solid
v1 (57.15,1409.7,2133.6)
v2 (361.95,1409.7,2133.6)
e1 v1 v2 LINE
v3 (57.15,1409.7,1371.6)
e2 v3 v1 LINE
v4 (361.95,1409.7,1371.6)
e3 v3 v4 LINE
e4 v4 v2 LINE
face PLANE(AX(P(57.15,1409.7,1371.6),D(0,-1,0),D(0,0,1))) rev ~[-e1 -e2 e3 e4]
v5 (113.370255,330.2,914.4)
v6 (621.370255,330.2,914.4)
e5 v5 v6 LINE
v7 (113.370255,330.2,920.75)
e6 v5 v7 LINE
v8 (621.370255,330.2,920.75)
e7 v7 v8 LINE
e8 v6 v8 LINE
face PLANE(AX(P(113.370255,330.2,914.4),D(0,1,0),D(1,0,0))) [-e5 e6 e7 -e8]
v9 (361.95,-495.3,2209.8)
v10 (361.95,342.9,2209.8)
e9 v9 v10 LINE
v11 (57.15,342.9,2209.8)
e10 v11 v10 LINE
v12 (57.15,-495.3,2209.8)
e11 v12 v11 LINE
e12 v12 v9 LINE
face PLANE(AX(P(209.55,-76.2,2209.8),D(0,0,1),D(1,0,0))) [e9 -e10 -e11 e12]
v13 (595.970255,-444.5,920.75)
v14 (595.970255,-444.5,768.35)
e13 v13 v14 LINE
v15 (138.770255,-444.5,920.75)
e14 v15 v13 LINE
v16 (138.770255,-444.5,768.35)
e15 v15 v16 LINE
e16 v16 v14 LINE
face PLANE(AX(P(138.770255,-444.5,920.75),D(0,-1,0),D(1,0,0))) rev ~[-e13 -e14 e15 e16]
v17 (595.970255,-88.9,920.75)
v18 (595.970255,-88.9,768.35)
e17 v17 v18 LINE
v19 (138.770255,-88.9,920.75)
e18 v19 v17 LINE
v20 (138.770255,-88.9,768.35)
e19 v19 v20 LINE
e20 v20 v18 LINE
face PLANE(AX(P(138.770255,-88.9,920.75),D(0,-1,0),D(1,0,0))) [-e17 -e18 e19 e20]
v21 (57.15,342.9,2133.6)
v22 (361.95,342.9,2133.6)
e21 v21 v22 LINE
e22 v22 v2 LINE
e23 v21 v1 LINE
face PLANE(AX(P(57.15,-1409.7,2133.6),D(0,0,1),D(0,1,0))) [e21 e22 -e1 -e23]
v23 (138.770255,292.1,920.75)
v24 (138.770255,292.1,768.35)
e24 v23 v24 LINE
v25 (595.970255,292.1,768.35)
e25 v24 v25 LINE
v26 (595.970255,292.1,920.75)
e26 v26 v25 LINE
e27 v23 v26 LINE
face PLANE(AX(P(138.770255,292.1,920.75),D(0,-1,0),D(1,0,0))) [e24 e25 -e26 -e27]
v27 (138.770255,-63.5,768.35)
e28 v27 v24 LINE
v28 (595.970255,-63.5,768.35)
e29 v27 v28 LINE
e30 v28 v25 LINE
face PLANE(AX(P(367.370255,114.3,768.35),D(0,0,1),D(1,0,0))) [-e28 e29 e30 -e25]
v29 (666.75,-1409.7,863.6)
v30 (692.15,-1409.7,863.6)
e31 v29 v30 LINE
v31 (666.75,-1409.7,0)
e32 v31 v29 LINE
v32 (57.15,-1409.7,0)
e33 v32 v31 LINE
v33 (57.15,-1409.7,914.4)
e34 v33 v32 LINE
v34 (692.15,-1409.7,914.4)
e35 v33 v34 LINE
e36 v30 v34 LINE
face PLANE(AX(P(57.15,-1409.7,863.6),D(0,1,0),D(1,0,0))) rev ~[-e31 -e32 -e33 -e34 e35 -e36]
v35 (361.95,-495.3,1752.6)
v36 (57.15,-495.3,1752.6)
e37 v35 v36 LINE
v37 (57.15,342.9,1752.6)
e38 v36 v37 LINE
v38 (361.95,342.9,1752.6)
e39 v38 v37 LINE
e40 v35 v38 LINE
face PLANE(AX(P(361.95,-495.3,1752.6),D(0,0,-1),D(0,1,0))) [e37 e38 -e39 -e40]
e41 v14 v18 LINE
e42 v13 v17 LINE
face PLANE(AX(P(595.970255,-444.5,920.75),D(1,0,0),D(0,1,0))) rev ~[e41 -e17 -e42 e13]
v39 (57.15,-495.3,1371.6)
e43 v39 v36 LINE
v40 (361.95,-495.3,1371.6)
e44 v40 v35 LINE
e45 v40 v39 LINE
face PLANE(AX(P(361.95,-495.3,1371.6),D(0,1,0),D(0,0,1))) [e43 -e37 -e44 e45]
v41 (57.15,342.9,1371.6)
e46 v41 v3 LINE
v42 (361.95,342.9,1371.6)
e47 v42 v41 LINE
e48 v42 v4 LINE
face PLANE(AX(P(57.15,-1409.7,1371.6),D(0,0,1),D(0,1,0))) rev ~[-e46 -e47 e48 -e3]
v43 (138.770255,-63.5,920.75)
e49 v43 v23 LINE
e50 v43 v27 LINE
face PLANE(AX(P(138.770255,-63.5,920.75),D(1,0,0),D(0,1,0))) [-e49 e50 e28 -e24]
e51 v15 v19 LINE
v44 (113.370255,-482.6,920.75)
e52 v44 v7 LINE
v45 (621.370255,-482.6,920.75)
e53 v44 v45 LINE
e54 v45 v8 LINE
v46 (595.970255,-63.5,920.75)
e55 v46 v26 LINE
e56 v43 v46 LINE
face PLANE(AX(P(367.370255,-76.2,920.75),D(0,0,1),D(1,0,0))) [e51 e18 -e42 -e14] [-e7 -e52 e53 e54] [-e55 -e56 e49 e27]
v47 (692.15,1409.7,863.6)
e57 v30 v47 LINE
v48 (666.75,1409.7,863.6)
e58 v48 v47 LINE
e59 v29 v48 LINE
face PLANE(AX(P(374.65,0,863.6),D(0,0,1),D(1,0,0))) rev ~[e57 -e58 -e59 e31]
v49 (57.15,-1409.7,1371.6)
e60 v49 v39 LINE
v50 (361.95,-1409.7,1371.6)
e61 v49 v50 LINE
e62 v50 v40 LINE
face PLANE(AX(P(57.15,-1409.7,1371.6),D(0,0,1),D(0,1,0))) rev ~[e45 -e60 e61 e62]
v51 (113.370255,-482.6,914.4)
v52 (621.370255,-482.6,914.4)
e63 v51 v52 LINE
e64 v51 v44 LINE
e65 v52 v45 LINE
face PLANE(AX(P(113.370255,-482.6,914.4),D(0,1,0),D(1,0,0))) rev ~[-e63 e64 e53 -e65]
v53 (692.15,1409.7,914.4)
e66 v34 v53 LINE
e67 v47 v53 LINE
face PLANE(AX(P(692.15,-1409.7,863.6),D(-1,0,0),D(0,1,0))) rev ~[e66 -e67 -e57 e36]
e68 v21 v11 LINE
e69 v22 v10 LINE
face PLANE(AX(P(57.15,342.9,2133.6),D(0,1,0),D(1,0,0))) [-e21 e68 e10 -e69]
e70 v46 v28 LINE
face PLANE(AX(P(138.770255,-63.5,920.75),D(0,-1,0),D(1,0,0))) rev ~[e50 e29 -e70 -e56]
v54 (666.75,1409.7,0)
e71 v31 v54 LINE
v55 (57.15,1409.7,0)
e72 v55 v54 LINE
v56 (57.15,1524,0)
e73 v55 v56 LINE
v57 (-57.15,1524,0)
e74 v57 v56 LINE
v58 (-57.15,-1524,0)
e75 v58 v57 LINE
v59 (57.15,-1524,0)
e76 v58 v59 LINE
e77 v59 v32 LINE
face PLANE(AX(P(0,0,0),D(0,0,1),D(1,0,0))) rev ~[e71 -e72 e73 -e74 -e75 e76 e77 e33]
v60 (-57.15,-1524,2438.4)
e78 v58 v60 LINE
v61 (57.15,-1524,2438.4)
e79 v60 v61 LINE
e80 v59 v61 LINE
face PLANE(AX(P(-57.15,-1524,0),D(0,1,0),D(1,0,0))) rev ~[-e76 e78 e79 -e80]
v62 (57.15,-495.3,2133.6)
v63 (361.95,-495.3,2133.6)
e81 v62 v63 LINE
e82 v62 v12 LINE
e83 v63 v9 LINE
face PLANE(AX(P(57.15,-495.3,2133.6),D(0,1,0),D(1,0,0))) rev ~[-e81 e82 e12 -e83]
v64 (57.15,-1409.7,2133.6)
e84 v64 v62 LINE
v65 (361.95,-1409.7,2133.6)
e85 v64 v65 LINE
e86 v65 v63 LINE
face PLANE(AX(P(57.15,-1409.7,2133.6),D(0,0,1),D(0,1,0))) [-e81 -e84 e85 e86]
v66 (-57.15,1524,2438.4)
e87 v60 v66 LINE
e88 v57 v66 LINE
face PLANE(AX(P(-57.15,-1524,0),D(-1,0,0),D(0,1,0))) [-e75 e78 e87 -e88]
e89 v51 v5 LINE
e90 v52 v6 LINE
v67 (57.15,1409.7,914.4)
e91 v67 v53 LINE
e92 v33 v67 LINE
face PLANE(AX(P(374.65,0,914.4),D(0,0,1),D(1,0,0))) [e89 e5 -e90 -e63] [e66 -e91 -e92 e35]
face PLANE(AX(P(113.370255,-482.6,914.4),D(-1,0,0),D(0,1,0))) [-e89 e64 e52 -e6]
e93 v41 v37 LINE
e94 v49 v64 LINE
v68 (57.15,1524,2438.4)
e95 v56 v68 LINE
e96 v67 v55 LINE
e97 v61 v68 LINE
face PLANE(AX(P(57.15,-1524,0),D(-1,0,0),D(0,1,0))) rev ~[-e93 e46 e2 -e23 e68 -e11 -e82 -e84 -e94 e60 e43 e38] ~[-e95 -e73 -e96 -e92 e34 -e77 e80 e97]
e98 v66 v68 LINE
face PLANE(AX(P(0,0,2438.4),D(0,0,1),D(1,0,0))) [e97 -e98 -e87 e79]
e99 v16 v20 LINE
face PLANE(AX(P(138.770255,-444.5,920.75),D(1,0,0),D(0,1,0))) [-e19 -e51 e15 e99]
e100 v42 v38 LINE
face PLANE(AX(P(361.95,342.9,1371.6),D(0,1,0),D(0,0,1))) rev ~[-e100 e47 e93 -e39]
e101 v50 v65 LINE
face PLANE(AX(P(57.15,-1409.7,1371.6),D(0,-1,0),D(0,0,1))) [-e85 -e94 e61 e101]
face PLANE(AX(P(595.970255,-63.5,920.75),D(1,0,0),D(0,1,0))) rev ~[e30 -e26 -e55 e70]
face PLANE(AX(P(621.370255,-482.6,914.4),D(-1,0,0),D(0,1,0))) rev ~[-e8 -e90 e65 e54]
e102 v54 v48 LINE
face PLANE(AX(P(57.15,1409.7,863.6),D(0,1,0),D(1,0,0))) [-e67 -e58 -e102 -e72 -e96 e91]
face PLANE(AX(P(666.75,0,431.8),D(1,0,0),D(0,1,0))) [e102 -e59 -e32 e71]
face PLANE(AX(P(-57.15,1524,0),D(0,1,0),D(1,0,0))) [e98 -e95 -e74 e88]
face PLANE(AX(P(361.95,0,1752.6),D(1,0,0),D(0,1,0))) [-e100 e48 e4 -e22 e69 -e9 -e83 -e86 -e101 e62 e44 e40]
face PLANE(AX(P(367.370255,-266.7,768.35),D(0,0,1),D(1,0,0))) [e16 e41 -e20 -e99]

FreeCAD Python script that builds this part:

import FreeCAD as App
import Part
import Sketcher
from FreeCAD import Vector
Q = App.Units.Quantity


def add_polygon(sketch, points):
    """Adds a closed chain of lines whose ends are joined by coincident constraints."""
    first, n = sketch.GeometryCount, len(points)
    for a, b in zip(points, points[1:] + points[:1]):
        sketch.addGeometry(Part.LineSegment(App.Vector(*a, 0), App.Vector(*b, 0)), False)
    for i in range(n):
        sketch.addConstraint(Sketcher.Constraint("Coincident", first + i, 2, first + (i + 1) % n, 1))

doc = App.newDocument("Part")
body = doc.addObject("PartDesign::Body", "Body")

sketch1 = body.newObject("Sketcher::SketchObject", "Sketch")
sketch1.AttachmentSupport = (doc.getObject("XY_Plane"), [""])
sketch1.MapMode = "FlatFace"
add_polygon(sketch1, [(-57, 1524), (-57, -1524), (57, -1524), (57, 1524)])
sketch1.addConstraint([
    Sketcher.Constraint("Vertical", 0),
    Sketcher.Constraint("Horizontal", 1),
    Sketcher.Constraint("Vertical", 2),
    Sketcher.Constraint("Horizontal", 3),
    Sketcher.Constraint("Symmetric", 0, 2, 2, 2, -1, 1),
    Sketcher.Constraint("DistanceY", 0, 2, 0, 1, Q("120 in")),
    Sketcher.Constraint("DistanceX", 1, 1, 1, 2, Q("4.5 in")),
])
pad1 = body.newObject("PartDesign::Pad", "Pad")
pad1.Profile = sketch1
pad1.Length = Q("96 in")

sketch2 = body.newObject("Sketcher::SketchObject", "Sketch001")
sketch2.AttachmentSupport = (doc.getObject("YZ_Plane"), [""])
sketch2.MapMode = "FlatFace"
sketch2.AttachmentOffset = App.Placement(Vector(0, 0, 2.25 * 25.4), App.Rotation())
add_polygon(sketch2, [(-1410, 864), (-1410, 0), (1410, 0), (1410, 864)])
sketch2.addConstraint([
    Sketcher.Constraint("Vertical", 0),
    Sketcher.Constraint("Horizontal", 1),
    Sketcher.Constraint("Vertical", 2),
    Sketcher.Constraint("Horizontal", 3),
    Sketcher.Constraint("Symmetric", 0, 2, 1, 2, -1, 1),
    Sketcher.Constraint("DistanceX", 1, 1, 1, 2, Q("111 in")),
    Sketcher.Constraint("DistanceY", 0, 2, 0, 1, Q("34 in")),
])
pad2 = body.newObject("PartDesign::Pad", "Pad001")
pad2.Profile = sketch2
pad2.Length = Q("24 in")

sketch3 = body.newObject("Sketcher::SketchObject", "Sketch002")
sketch3.AttachmentSupport = (doc.getObject("YZ_Plane"), [""])
sketch3.MapMode = "FlatFace"
sketch3.AttachmentOffset = App.Placement(Vector(0, 0, 2.25 * 25.4), App.Rotation())
add_polygon(sketch3, [(-1410, 2134), (-1410, 1372), (1410, 1372), (1410, 2134)])
sketch3.addConstraint([
    Sketcher.Constraint("Vertical", 0),
    Sketcher.Constraint("Horizontal", 1),
    Sketcher.Constraint("Vertical", 2),
    Sketcher.Constraint("Horizontal", 3),
    Sketcher.Constraint("DistanceX", 1, 1, 1, 2, Q("111 in")),
    Sketcher.Constraint("DistanceY", 0, 2, 0, 1, Q("30 in")),
    Sketcher.Constraint("DistanceY", -1, 1, 0, 2, Q("54 in")),
    Sketcher.Constraint("DistanceX", 0, 2, -1, 1, Q("55.5 in")),
])
pad3 = body.newObject("PartDesign::Pad", "Pad002")
pad3.Profile = sketch3
pad3.Length = Q("12 in")

sketch4 = body.newObject("Sketcher::SketchObject", "Sketch003")
sketch4.AttachmentSupport = (doc.getObject("YZ_Plane"), [""])
sketch4.MapMode = "FlatFace"
sketch4.AttachmentOffset = App.Placement(Vector(0, 0, 14.25 * 25.4), App.Rotation())
add_polygon(sketch4, [(-495, 1753), (-495, 1372), (343, 1372), (343, 1753)])
sketch4.addConstraint([
    Sketcher.Constraint("Vertical", 0),
    Sketcher.Constraint("Horizontal", 1),
    Sketcher.Constraint("Vertical", 2),
    Sketcher.Constraint("Horizontal", 3),
    Sketcher.Constraint("DistanceX", 1, 1, 1, 2, Q("33 in")),
    Sketcher.Constraint("DistanceY", 0, 2, 0, 1, Q("15 in")),
    Sketcher.Constraint("DistanceY", -1, 1, 0, 2, Q("54 in")),
    Sketcher.Constraint("DistanceX", 0, 2, -1, 1, Q("19.5 in")),
])
pocket1 = body.newObject("PartDesign::Pocket", "Pocket")
pocket1.Profile = sketch4
pocket1.Length = Q("12 in")

sketch5 = body.newObject("Sketcher::SketchObject", "Sketch004")
sketch5.AttachmentSupport = (doc.getObject("XY_Plane"), [""])
sketch5.MapMode = "FlatFace"
sketch5.AttachmentOffset = App.Placement(Vector(0, 0, 84 * 25.4), App.Rotation())
add_polygon(sketch5, [(57, 343), (57, -495), (362, -495), (362, 343)])
sketch5.addConstraint([
    Sketcher.Constraint("Vertical", 0),
    Sketcher.Constraint("Horizontal", 1),
    Sketcher.Constraint("Vertical", 2),
    Sketcher.Constraint("Horizontal", 3),
    Sketcher.Constraint("DistanceX", 1, 1, 1, 2, Q("12 in")),
    Sketcher.Constraint("DistanceY", 0, 2, 0, 1, Q("33 in")),
    Sketcher.Constraint("DistanceY", 0, 2, -1, 1, Q("19.5 in")),
    Sketcher.Constraint("DistanceX", -1, 1, 0, 2, Q("2.25 in")),
])
pad4 = body.newObject("PartDesign::Pad", "Pad003")
pad4.Profile = sketch5
pad4.Length = Q("3 in")

sketch6 = body.newObject("Sketcher::SketchObject", "Sketch005")
sketch6.AttachmentSupport = (doc.getObject("XY_Plane"), [""])
sketch6.MapMode = "FlatFace"
sketch6.AttachmentOffset = App.Placement(Vector(0, 0, 34 * 25.4), App.Rotation())
add_polygon(sketch6, [(57, 1410), (57, -1410), (692, -1410), (692, 1410)])
sketch6.addConstraint([
    Sketcher.Constraint("Vertical", 0),
    Sketcher.Constraint("Horizontal", 1),
    Sketcher.Constraint("Vertical", 2),
    Sketcher.Constraint("Horizontal", 3),
    Sketcher.Constraint("DistanceX", 1, 1, 1, 2, Q("25 in")),
    Sketcher.Constraint("DistanceY", 0, 2, 0, 1, Q("111 in")),
    Sketcher.Constraint("DistanceY", 0, 2, -1, 1, Q("55.5 in")),
    Sketcher.Constraint("DistanceX", -1, 1, 0, 2, Q("2.25 in")),
])
pad5 = body.newObject("PartDesign::Pad", "Pad004")
pad5.Profile = sketch6
pad5.Length = Q("2 in")

sketch7 = body.newObject("Sketcher::SketchObject", "Sketch006")
sketch7.AttachmentSupport = (doc.getObject("XY_Plane"), [""])
sketch7.MapMode = "FlatFace"
sketch7.AttachmentOffset = App.Placement(Vector(0, 0, 36 * 25.4), App.Rotation())
add_polygon(sketch7, [(113, 330), (113, -483), (621, -483), (621, 330)])
sketch7.addConstraint([
    Sketcher.Constraint("Vertical", 0),
    Sketcher.Constraint("Horizontal", 1),
    Sketcher.Constraint("Vertical", 2),
    Sketcher.Constraint("Horizontal", 3),
    Sketcher.Constraint("DistanceX", 1, 1, 1, 2, Q("20 in")),
    Sketcher.Constraint("DistanceY", 0, 2, 0, 1, Q("32 in")),
    Sketcher.Constraint("DistanceY", 0, 2, -1, 1, Q("19 in")),
    Sketcher.Constraint("DistanceX", -1, 1, 0, 2, Q("113.370255 mm")),
])
pad6 = body.newObject("PartDesign::Pad", "Pad005")
pad6.Profile = sketch7
pad6.Length = Q("0.25 in")

sketch8 = body.newObject("Sketcher::SketchObject", "Sketch007")
sketch8.AttachmentSupport = (doc.getObject("XY_Plane"), [""])
sketch8.MapMode = "FlatFace"
sketch8.AttachmentOffset = App.Placement(Vector(0, 0, 36.25 * 25.4), App.Rotation())
add_polygon(sketch8, [(139, -89), (139, -444), (596, -444), (596, -89)])
add_polygon(sketch8, [(139, 292), (139, -64), (596, -64), (596, 292)])
sketch8.addConstraint([
    Sketcher.Constraint("Vertical", 0),
    Sketcher.Constraint("Horizontal", 1),
    Sketcher.Constraint("Vertical", 2),
    Sketcher.Constraint("Horizontal", 3),
    Sketcher.Constraint("Vertical", 4),
    Sketcher.Constraint("Horizontal", 5),
    Sketcher.Constraint("Vertical", 6),
    Sketcher.Constraint("Horizontal", 7),
    Sketcher.Constraint("Vertical", 3, 2, 4, 2),
    Sketcher.Constraint("Vertical", 2, 2, 5, 2),
    Sketcher.Constraint("Equal", 2, 4),
    Sketcher.Constraint("DistanceX", 1, 1, 1, 2, Q("18 in")),
    Sketcher.Constraint("DistanceY", 0, 2, 0, 1, Q("14 in")),
    Sketcher.Constraint("DistanceY", 3, 2, 4, 2, Q("1 in")),
    Sketcher.Constraint("DistanceY", 0, 2, -1, 1, Q("17.5 in")),
    Sketcher.Constraint("DistanceX", -1, 1, 0, 2, Q("138.770255 mm")),
])
pocket2 = body.newObject("PartDesign::Pocket", "Pocket001")
pocket2.Profile = sketch8
pocket2.Length = Q("6 in")

doc.recompute()
